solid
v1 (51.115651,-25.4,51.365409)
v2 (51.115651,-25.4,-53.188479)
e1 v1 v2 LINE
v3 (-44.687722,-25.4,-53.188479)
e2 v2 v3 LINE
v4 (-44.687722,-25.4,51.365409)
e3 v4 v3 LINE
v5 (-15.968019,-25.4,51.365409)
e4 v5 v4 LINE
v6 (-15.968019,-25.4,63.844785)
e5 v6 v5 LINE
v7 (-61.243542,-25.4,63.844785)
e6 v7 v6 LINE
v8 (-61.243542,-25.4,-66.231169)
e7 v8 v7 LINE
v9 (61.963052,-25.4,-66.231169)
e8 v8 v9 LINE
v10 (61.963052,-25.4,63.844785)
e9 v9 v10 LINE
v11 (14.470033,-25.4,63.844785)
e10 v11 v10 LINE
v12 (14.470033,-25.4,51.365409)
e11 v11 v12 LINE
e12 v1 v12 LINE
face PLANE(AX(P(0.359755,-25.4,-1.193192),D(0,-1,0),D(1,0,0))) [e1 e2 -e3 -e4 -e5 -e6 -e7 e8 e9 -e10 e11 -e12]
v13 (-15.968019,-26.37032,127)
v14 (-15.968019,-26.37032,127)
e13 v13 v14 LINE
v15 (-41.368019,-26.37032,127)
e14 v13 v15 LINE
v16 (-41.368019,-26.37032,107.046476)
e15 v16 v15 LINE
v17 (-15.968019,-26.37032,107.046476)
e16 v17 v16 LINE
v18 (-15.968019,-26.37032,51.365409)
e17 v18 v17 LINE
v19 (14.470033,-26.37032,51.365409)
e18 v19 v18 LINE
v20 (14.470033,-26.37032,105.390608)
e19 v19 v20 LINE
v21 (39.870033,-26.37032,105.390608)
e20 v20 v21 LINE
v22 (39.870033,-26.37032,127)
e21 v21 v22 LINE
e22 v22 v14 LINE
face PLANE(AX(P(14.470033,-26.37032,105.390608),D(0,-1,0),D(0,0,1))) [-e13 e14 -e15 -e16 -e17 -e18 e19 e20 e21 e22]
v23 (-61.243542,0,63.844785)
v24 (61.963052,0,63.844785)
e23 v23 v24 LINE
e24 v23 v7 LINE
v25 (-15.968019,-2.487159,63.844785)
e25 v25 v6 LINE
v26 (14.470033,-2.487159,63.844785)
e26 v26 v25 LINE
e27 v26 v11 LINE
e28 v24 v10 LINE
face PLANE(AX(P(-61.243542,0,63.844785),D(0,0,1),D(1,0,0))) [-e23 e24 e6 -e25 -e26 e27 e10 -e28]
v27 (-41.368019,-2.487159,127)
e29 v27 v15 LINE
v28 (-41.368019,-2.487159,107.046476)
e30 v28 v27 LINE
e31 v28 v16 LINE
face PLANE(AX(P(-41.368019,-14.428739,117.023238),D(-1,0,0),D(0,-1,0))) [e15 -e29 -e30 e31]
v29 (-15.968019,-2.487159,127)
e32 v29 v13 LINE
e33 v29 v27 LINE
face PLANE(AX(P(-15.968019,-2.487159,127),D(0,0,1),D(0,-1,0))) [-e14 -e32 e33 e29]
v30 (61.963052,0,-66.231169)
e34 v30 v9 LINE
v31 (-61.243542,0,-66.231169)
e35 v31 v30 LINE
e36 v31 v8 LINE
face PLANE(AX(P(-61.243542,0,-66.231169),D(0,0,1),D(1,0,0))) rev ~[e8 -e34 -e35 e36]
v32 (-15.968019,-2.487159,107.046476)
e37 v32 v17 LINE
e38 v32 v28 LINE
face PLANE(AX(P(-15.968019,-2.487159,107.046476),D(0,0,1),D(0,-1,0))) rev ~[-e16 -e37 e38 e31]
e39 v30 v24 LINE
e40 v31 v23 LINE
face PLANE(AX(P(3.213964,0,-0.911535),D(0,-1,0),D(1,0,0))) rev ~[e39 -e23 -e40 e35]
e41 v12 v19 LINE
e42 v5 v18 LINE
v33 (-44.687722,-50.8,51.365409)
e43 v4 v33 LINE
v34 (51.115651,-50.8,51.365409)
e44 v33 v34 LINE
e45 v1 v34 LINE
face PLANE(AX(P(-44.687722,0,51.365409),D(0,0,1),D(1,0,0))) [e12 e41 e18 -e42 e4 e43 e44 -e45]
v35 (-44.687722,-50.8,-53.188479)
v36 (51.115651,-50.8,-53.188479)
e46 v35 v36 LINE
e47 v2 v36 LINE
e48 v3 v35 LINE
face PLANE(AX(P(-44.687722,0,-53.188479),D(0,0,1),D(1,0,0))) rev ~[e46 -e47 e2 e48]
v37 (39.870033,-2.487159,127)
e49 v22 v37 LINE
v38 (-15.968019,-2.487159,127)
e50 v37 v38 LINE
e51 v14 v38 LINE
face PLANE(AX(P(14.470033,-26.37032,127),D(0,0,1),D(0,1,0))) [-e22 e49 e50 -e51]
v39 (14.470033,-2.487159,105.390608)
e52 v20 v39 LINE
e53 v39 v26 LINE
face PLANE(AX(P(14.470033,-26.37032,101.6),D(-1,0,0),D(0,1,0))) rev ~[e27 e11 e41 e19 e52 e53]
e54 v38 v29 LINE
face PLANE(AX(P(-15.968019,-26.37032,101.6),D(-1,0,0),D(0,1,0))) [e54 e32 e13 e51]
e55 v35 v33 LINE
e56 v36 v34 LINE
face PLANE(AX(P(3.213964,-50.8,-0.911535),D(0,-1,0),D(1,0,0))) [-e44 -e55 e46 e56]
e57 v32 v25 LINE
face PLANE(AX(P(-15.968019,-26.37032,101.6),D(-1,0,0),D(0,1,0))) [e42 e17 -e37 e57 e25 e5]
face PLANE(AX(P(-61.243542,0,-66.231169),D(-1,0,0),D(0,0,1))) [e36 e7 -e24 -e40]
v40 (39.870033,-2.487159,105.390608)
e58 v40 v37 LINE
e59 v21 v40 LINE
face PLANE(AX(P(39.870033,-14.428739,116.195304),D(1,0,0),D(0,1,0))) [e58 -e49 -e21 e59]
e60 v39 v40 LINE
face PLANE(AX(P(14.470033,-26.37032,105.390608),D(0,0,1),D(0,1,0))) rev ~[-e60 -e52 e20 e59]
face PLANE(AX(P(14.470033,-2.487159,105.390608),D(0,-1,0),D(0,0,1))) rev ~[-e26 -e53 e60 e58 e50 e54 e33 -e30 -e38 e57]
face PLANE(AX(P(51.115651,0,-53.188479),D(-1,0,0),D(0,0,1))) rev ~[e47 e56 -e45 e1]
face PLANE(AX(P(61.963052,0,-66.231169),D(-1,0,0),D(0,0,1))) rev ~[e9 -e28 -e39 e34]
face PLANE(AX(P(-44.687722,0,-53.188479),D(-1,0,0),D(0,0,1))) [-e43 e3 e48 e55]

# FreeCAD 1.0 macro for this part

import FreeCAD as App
import Part
import Sketcher

V = App.Vector
Q = App.Units.Quantity


def add_polygon(sketch, points):
    """Adds a closed chain of lines whose ends are joined by coincident constraints."""
    first, n = sketch.GeometryCount, len(points)
    for a, b in zip(points, points[1:] + points[:1]):
        sketch.addGeometry(Part.LineSegment(App.Vector(*a, 0), App.Vector(*b, 0)), False)
    for i in range(n):
        sketch.addConstraint(Sketcher.Constraint("Coincident", first + i, 2, first + (i + 1) % n, 1))

doc = App.newDocument("Part")
params = doc.addObject("Spreadsheet::Sheet", "Params")
for row, (alias, value) in enumerate([
    ("pad1_length", "1 in"),
    ("pad2_length", "2 in"),
    ("pad3_length", "4 in"),
    ("pad4_length", "1 in"),
    ("pad5_length", "1 in"),
    ("pad6_length", "1 in"),
], start=1):
    params.set(f"A{row}", alias)
    params.set(f"B{row}", "=" + value)
    params.setAlias(f"B{row}", alias)

body = doc.addObject("PartDesign::Body", "Body")

sketch1 = body.newObject("Sketcher::SketchObject", "Sketch")
sketch1.AttachmentSupport = (doc.getObject("XZ_Plane"), [""])
sketch1.MapMode = "FlatFace"
add_polygon(sketch1, [(-61, 64), (-61, -66), (62, -66), (62, 64)])
sketch1.addConstraint([
    Sketcher.Constraint("Vertical", 0),
    Sketcher.Constraint("Horizontal", 1),
    Sketcher.Constraint("Vertical", 2),
    Sketcher.Constraint("Horizontal", 3),
    Sketcher.Constraint("DistanceX", 1, 1, 1, 2, 123.206594),
    Sketcher.Constraint("DistanceY", 0, 2, 0, 1, 130.075954),
    Sketcher.Constraint("DistanceX", 0, 2, -1, 1, 61.243542),
    Sketcher.Constraint("DistanceY", 0, 2, -1, 1, 66.231169),
])
pad1 = body.newObject("PartDesign::Pad", "Pad")
pad1.Profile = sketch1
pad1.setExpression("Length", "Params.pad1_length")

sketch2 = body.newObject("Sketcher::SketchObject", "Sketch001")
sketch2.AttachmentSupport = (doc.getObject("XZ_Plane"), [""])
sketch2.MapMode = "FlatFace"
add_polygon(sketch2, [(-45, 51), (-45, -53), (51, -53), (51, 51)])
sketch2.addConstraint([
    Sketcher.Constraint("Vertical", 0),
    Sketcher.Constraint("Horizontal", 1),
    Sketcher.Constraint("Vertical", 2),
    Sketcher.Constraint("Horizontal", 3),
    Sketcher.Constraint("DistanceY", 0, 2, 0, 1, 104.553889),
    Sketcher.Constraint("DistanceX", 1, 1, 1, 2, 95.803373),
    Sketcher.Constraint("DistanceY", 0, 2, -1, 1, 53.188479),
    Sketcher.Constraint("DistanceX", -1, 1, 1, 2, 51.115651),
])
pad2 = body.newObject("PartDesign::Pad", "Pad001")
pad2.Profile = sketch2
pad2.setExpression("Length", "Params.pad2_length")

sketch3 = body.newObject("Sketcher::SketchObject", "Sketch002")
sketch3.AttachmentSupport = (doc.getObject("XY_Plane"), [""])
sketch3.MapMode = "FlatFace"
add_polygon(sketch3, [(-16, -2), (-16, -26), (14, -26), (14, -2)])
sketch3.addConstraint([
    Sketcher.Constraint("Vertical", 0),
    Sketcher.Constraint("Horizontal", 1),
    Sketcher.Constraint("Vertical", 2),
    Sketcher.Constraint("Horizontal", 3),
    Sketcher.Constraint("DistanceX", 1, 1, 1, 2, 30.438052),
    Sketcher.Constraint("DistanceY", 0, 2, 0, 1, 23.883161),
    Sketcher.Constraint("DistanceX", 0, 2, -1, 1, 15.968019),
    Sketcher.Constraint("DistanceY", 0, 2, -1, 1, 26.37032),
])
pad3 = body.newObject("PartDesign::Pad", "Pad002")
pad3.Profile = sketch3
pad3.setExpression("Length", "Params.pad3_length")

sketch4 = body.newObject("Sketcher::SketchObject", "Sketch003")
sketch4.AttachmentSupport = (doc.getObject("XY_Plane"), [""])
sketch4.MapMode = "FlatFace"
sketch4.AttachmentOffset = App.Placement(V(0, 0, 4 * 25.4), App.Rotation())
add_polygon(sketch4, [(-16, -2), (-16, -26), (14, -26), (14, -2)])
sketch4.addConstraint([
    Sketcher.Constraint("Vertical", 0),
    Sketcher.Constraint("Horizontal", 1),
    Sketcher.Constraint("Vertical", 2),
    Sketcher.Constraint("Horizontal", 3),
    Sketcher.Constraint("DistanceX", 1, 1, 1, 2, 30.438052),
    Sketcher.Constraint("DistanceY", 0, 2, 0, 1, 23.883161),
    Sketcher.Constraint("DistanceX", 0, 2, -1, 1, 15.968019),
    Sketcher.Constraint("DistanceY", 0, 2, -1, 1, 26.37032),
])
pad4 = body.newObject("PartDesign::Pad", "Pad003")
pad4.Profile = sketch4
pad4.setExpression("Length", "Params.pad4_length")

sketch5 = body.newObject("Sketcher::SketchObject", "Sketch004")
sketch5.AttachmentSupport = (doc.getObject("YZ_Plane"), [""])
sketch5.MapMode = "FlatFace"
sketch5.AttachmentOffset = App.Placement(V(0, 0, -15.968019), App.Rotation())
add_polygon(sketch5, [(-2, 127), (-2, 107), (-26, 107), (-26, 127)])
sketch5.addConstraint([
    Sketcher.Constraint("Vertical", 0),
    Sketcher.Constraint("Horizontal", 1),
    Sketcher.Constraint("Vertical", 2),
    Sketcher.Constraint("Horizontal", 3),
    Sketcher.Constraint("DistanceY", -1, 1, 2, 2, Q("5 in")),
    Sketcher.Constraint("DistanceX", 1, 2, 1, 1, 23.883161),
    Sketcher.Constraint("DistanceY", 0, 2, 0, 1, 19.953523),
    Sketcher.Constraint("DistanceX", 0, 2, -1, 1, 2.487159),
])
pad5 = body.newObject("PartDesign::Pad", "Pad004")
pad5.Profile = sketch5
pad5.setExpression("Length", "Params.pad5_length")
pad5.Reversed = True

sketch6 = body.newObject("Sketcher::SketchObject", "Sketch005")
sketch6.AttachmentSupport = (doc.getObject("YZ_Plane"), [""])
sketch6.MapMode = "FlatFace"
sketch6.AttachmentOffset = App.Placement(V(0, 0, 14.470033), App.Rotation())
add_polygon(sketch6, [(-26, 127), (-26, 105), (-2, 105), (-2, 127)])
sketch6.addConstraint([
    Sketcher.Constraint("Vertical", 0),
    Sketcher.Constraint("Horizontal", 1),
    Sketcher.Constraint("Vertical", 2),
    Sketcher.Constraint("Horizontal", 3),
    Sketcher.Constraint("DistanceY", -1, 1, 2, 2, Q("5 in")),
    Sketcher.Constraint("DistanceX", 1, 1, 1, 2, 23.883161),
    Sketcher.Constraint("DistanceY", 0, 2, 0, 1, 21.609392),
    Sketcher.Constraint("DistanceX", 0, 2, -1, 1, 26.37032),
])
pad6 = body.newObject("PartDesign::Pad", "Pad005")
pad6.Profile = sketch6
pad6.setExpression("Length", "Params.pad6_length")

doc.recompute()
